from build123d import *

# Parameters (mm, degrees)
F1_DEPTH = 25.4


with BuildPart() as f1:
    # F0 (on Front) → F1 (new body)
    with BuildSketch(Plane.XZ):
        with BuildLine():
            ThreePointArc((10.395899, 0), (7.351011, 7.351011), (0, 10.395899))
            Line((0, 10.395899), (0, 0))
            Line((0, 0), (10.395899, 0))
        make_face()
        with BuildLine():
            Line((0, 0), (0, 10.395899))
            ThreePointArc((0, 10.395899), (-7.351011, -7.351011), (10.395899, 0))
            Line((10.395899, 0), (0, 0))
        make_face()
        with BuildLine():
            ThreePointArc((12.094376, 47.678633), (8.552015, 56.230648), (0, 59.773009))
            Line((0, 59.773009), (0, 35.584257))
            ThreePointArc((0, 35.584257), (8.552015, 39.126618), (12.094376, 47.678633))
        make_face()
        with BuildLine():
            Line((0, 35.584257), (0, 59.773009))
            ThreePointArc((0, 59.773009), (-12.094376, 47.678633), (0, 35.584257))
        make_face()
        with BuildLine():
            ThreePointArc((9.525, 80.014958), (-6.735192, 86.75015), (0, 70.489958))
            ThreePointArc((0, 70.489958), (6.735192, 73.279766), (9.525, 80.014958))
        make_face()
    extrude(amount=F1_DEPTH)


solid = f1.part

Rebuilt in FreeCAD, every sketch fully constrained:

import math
import FreeCAD as App
import Part
import Sketcher
Q = App.Units.Quantity

doc = App.newDocument("Part")
params = doc.addObject("Spreadsheet::Sheet", "Params")
for row, (alias, value) in enumerate([
    ("sketch1_radius", "0.375 in"),
    ("pad1_length", "1 in"),
], start=1):
    params.set(f"A{row}", alias)
    params.set(f"B{row}", "=" + value)
    params.setAlias(f"B{row}", alias)

body = doc.addObject("PartDesign::Body", "Body")
body.AllowCompound = True

sketch1 = body.newObject("Sketcher::SketchObject", "Sketch")
sketch1.AttachmentSupport = (doc.getObject("XZ_Plane"), [""])
sketch1.MapMode = "FlatFace"
sketch1.addGeometry([
    Part.ArcOfCircle(Part.Circle(App.Vector(0, 0, 0), App.Vector(0, 0, 1), 10), math.radians(0), math.radians(90)),
    Part.ArcOfCircle(Part.Circle(App.Vector(0, 0, 0), App.Vector(0, 0, 1), 10), math.radians(90), math.radians(360)),
    Part.ArcOfCircle(Part.Circle(App.Vector(0, 48, 0), App.Vector(0, 0, 1), 12), math.radians(0), math.radians(90)),
    Part.ArcOfCircle(Part.Circle(App.Vector(0, 48, 0), App.Vector(0, 0, 1), 12), math.radians(90), math.radians(270)),
    Part.ArcOfCircle(Part.Circle(App.Vector(0, 48, 0), App.Vector(0, 0, 1), 12), math.radians(-90), math.radians(0)),
    Part.ArcOfCircle(Part.Circle(App.Vector(0, 80, 0), App.Vector(0, 0, 1), 10), math.radians(0), math.radians(270)),
    Part.ArcOfCircle(Part.Circle(App.Vector(0, 80, 0), App.Vector(0, 0, 1), 10), math.radians(-90), math.radians(0)),
], False)
sketch1.addConstraint([
    Sketcher.Constraint("Tangent", 0, 1, 1, 2),
    Sketcher.Constraint("Coincident", 1, 1, 0, 2),
    Sketcher.Constraint("Tangent", 2, 2, 3, 1),
    Sketcher.Constraint("Tangent", 3, 2, 4, 1),
    Sketcher.Constraint("Tangent", 4, 2, 2, 1),
    Sketcher.Constraint("Tangent", 5, 1, 6, 2),
    Sketcher.Constraint("Coincident", 6, 1, 5, 2),
    Sketcher.Constraint("Coincident", 0, 3, -1, 1),
    Sketcher.Constraint("PointOnObject", 2, 3, -2),
    Sketcher.Constraint("PointOnObject", 5, 3, -2),
    Sketcher.Constraint("PointOnObject", 0, 1, -1),
    Sketcher.Constraint("PointOnObject", 1, 1, -2),
    Sketcher.Constraint("PointOnObject", 2, 2, -2),
    Sketcher.Constraint("PointOnObject", 3, 2, -2),
    Sketcher.Constraint("PointOnObject", 6, 1, -2),
    Sketcher.Constraint("Horizontal", 3, 3, 4, 2),
    Sketcher.Constraint("Horizontal", 6, 3, 5, 1),
    Sketcher.Constraint("Radius", 5, Q("0.375 in")),
    Sketcher.Constraint("Radius", 1, Q("10.395899 mm")),
    Sketcher.Constraint("Radius", 2, Q("12.094377 mm")),
    Sketcher.Constraint("DistanceY", -1, 1, 6, 3, Q("80.014958 mm")),
    Sketcher.Constraint("DistanceY", -1, 1, 2, 2, Q("59.773009 mm")),
])
sketch1.setExpression("Constraints[17]", "Params.sketch1_radius")
pad1 = body.newObject("PartDesign::Pad", "Pad")
pad1.Profile = sketch1
pad1.setExpression("Length", "Params.pad1_length")

doc.recompute()
